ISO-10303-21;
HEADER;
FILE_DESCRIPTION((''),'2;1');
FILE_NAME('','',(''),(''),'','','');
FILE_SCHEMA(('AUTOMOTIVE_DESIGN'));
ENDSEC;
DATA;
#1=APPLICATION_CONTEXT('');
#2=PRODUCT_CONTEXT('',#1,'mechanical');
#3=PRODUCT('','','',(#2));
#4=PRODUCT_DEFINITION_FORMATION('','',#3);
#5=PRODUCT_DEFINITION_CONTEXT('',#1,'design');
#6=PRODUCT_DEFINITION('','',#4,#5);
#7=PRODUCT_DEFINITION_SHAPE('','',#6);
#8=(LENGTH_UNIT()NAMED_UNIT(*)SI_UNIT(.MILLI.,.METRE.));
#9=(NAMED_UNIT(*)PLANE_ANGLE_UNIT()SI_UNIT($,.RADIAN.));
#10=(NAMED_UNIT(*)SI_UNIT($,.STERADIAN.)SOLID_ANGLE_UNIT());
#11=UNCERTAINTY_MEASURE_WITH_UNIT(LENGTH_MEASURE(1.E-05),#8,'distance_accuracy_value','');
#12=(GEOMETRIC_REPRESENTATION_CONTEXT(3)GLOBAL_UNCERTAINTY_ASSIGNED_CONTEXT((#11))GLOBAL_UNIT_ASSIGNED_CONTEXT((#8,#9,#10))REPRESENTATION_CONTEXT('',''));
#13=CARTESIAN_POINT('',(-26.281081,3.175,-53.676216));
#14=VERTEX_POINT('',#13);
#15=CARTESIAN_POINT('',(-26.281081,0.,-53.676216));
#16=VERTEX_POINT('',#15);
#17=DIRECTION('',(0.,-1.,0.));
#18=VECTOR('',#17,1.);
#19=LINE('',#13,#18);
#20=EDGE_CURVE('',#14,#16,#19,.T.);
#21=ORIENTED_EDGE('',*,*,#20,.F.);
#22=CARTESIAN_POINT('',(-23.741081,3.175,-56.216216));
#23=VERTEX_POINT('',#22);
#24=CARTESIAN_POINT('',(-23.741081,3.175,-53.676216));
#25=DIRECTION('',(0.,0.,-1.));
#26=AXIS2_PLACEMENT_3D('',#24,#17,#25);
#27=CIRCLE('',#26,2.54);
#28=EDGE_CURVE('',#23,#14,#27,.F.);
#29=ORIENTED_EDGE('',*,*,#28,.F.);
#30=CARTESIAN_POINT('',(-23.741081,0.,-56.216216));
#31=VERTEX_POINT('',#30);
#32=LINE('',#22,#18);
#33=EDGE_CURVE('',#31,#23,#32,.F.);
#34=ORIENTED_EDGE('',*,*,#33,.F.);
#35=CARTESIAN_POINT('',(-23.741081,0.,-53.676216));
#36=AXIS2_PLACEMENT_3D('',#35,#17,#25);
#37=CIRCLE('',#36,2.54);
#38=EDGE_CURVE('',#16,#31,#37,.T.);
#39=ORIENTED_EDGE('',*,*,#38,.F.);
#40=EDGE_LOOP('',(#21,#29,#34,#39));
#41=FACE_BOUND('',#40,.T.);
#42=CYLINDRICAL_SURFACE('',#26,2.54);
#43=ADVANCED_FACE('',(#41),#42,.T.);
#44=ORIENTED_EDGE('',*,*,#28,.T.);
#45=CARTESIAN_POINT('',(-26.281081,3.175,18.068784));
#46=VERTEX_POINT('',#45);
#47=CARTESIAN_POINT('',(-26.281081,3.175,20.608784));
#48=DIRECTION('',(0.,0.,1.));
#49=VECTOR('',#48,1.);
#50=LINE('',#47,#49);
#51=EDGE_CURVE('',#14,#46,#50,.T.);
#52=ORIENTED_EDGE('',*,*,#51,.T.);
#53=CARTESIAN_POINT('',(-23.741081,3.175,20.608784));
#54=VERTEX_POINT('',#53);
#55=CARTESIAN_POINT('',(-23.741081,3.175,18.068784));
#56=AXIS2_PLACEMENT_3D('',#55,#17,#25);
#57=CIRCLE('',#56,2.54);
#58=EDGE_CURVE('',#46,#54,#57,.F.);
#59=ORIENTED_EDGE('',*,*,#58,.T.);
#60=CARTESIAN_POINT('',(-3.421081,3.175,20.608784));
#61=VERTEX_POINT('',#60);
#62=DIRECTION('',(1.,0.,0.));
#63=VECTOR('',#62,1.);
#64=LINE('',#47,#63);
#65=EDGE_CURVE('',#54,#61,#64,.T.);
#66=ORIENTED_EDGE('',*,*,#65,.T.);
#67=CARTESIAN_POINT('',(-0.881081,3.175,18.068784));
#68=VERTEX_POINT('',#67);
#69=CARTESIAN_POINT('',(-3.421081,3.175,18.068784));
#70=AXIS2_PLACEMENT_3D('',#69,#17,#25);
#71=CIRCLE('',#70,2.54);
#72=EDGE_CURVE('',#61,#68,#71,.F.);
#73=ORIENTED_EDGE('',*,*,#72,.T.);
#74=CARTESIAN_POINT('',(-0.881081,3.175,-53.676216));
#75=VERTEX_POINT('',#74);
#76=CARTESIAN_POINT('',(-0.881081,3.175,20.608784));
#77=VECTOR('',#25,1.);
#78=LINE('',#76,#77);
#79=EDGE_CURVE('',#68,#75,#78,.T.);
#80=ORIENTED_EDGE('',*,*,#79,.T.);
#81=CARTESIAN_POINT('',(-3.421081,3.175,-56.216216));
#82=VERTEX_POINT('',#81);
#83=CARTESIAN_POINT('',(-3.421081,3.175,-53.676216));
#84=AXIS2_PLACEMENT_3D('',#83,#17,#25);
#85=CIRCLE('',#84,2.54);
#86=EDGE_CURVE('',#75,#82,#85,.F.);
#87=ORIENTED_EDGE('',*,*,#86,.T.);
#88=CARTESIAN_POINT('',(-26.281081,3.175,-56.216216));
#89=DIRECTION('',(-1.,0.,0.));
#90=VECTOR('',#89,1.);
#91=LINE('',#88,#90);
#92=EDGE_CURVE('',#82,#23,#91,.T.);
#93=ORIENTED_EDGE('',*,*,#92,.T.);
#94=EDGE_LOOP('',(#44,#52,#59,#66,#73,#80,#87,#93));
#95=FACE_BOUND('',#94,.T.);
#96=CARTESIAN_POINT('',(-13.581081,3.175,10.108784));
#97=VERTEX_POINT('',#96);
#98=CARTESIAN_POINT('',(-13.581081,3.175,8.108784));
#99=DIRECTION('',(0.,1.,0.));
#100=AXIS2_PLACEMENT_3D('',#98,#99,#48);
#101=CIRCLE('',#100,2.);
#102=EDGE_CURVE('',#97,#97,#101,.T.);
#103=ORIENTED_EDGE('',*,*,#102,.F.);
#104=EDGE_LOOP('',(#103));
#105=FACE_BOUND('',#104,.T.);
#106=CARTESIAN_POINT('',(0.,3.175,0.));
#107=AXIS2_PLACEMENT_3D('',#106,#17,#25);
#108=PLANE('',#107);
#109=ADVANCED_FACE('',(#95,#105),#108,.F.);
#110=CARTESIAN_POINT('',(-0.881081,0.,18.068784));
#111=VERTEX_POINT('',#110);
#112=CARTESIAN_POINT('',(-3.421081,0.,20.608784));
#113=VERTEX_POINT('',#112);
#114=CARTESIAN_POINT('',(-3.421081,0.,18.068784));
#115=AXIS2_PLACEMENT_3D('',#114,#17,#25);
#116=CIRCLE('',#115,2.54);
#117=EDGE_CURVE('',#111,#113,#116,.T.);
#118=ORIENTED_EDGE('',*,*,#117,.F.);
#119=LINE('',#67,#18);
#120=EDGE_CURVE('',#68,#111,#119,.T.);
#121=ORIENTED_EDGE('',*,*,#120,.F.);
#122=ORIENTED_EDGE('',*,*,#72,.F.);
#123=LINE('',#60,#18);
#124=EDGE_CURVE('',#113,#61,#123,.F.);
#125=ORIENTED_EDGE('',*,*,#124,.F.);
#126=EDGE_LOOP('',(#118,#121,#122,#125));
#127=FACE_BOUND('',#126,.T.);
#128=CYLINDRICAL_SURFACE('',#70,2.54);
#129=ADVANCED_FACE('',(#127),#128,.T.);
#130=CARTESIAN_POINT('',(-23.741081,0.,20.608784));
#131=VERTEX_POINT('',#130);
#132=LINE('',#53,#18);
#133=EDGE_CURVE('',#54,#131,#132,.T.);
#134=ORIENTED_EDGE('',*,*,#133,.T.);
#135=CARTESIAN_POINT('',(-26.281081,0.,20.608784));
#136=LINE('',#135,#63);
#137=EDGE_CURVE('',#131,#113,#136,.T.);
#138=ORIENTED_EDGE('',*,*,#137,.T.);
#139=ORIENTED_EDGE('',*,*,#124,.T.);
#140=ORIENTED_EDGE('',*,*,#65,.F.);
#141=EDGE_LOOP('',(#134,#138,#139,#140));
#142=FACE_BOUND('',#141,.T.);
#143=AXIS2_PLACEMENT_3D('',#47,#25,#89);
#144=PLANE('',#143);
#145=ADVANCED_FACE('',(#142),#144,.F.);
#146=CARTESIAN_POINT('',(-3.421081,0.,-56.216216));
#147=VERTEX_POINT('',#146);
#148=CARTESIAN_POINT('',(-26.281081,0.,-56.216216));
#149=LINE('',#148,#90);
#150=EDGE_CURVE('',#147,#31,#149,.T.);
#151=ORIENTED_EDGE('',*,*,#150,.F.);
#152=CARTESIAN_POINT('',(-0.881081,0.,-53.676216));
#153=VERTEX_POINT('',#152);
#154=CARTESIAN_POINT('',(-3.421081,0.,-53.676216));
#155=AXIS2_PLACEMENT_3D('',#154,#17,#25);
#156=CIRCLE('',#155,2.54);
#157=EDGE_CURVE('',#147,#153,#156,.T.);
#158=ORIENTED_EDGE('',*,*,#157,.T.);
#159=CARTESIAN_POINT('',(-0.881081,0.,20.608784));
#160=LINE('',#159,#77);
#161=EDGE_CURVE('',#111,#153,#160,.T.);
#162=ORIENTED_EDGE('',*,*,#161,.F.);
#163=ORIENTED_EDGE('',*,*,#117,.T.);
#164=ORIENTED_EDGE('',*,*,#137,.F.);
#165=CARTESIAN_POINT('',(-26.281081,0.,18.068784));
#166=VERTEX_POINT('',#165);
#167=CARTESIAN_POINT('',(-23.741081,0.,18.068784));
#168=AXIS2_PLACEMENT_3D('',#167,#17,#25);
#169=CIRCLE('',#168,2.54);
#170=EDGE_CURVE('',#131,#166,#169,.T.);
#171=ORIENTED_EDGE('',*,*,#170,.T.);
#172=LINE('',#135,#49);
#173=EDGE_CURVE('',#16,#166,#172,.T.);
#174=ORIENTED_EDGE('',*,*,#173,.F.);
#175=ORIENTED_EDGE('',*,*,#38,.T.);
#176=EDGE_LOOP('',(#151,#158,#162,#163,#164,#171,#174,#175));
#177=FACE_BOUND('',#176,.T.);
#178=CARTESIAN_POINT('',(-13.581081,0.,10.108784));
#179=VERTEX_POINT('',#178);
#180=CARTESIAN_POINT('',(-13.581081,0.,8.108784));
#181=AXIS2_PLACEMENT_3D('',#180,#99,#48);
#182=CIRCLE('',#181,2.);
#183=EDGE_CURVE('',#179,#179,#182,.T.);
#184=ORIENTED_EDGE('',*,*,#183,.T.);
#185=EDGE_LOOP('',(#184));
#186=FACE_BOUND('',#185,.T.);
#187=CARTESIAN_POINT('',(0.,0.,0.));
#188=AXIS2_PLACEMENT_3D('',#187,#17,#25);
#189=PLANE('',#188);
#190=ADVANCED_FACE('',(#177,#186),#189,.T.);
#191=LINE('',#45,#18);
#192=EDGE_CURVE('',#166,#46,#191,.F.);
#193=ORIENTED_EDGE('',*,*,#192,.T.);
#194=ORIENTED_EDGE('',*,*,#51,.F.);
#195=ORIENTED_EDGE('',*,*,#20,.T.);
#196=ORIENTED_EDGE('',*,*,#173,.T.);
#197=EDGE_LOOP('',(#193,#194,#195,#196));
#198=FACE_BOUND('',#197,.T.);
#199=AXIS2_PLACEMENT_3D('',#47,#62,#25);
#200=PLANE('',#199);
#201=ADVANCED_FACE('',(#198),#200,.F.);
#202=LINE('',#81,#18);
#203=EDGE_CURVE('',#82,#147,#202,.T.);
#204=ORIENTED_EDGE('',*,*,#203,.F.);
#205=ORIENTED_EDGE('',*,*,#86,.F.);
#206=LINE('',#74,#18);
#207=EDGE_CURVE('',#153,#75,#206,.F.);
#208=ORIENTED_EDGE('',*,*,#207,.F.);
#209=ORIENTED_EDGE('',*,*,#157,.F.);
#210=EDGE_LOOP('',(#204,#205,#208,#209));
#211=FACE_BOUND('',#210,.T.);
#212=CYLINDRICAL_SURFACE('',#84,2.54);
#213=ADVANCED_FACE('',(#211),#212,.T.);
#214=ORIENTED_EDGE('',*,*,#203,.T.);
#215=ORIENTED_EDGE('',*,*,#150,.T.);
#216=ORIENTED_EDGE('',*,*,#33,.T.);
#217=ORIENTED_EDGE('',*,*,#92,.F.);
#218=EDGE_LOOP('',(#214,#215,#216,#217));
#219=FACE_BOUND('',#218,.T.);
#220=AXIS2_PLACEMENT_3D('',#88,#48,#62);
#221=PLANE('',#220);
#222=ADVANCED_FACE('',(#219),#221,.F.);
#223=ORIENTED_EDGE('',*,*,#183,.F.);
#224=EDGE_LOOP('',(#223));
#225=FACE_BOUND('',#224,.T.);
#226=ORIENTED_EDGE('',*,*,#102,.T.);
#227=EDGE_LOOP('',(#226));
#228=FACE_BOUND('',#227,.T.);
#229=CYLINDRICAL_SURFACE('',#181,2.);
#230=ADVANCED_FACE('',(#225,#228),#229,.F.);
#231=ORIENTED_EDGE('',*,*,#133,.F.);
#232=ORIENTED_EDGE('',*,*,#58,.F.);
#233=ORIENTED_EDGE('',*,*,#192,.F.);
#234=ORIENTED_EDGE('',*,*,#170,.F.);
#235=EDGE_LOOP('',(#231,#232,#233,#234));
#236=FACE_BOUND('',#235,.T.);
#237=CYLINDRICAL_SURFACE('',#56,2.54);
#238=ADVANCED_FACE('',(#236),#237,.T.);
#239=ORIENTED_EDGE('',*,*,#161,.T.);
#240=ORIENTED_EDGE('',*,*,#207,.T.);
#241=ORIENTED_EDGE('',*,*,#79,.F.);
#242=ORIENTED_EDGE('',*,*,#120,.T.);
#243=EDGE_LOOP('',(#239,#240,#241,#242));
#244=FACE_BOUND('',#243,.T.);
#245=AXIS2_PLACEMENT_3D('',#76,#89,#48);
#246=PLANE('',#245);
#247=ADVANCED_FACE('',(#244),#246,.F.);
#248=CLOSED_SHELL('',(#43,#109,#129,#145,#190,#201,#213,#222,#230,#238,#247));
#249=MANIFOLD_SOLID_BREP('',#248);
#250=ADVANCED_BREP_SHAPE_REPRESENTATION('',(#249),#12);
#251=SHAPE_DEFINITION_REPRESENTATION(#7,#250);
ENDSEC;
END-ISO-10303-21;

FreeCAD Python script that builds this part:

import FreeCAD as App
import Part
import Sketcher

V = App.Vector
Q = App.Units.Quantity


def edges_at(feature, points):
    """Names of the edges that pass closest to the given points."""
    edges = feature.Shape.Edges
    near = lambda p: min(range(len(edges)), key=lambda i: edges[i].distToShape(Part.Vertex(*p))[0])
    return sorted({f"Edge{near(p) + 1}" for p in points})


def add_polygon(sketch, points):
    """Adds a closed chain of lines whose ends are joined by coincident constraints."""
    first, n = sketch.GeometryCount, len(points)
    for a, b in zip(points, points[1:] + points[:1]):
        sketch.addGeometry(Part.LineSegment(App.Vector(*a, 0), App.Vector(*b, 0)), False)
    for i in range(n):
        sketch.addConstraint(Sketcher.Constraint("Coincident", first + i, 2, first + (i + 1) % n, 1))

doc = App.newDocument("Part")
body = doc.addObject("PartDesign::Body", "Body")

sketch1 = body.newObject("Sketcher::SketchObject", "Sketch")
sketch1.AttachmentSupport = (doc.getObject("XZ_Plane"), [""])
sketch1.MapMode = "FlatFace"
add_polygon(sketch1, [(-26, -56), (-26, 21), (-1, 21), (-1, -56)])
sketch1.addConstraint([
    Sketcher.Constraint("Vertical", 0),
    Sketcher.Constraint("Horizontal", 1),
    Sketcher.Constraint("Vertical", 2),
    Sketcher.Constraint("Horizontal", 3),
    Sketcher.Constraint("DistanceX", 1, 1, 1, 2, Q("1 in")),
    Sketcher.Constraint("DistanceY", 0, 1, 0, 2, Q("76.825 mm")),
    Sketcher.Constraint("DistanceX", 0, 2, -1, 1, Q("26.281081 mm")),
    Sketcher.Constraint("DistanceY", -1, 1, 0, 2, Q("20.608784 mm")),
])
pad1 = body.newObject("PartDesign::Pad", "Pad")
pad1.Profile = sketch1
pad1.Length = Q("0.125 in")
pad1.Reversed = True

sketch2 = body.newObject("Sketcher::SketchObject", "Sketch001")
sketch2.AttachmentSupport = (doc.getObject("XZ_Plane"), [""])
sketch2.MapMode = "FlatFace"
sketch2.AttachmentOffset = App.Placement(V(0, 0, -0.125 * 25.4), App.Rotation())
sketch2.addGeometry(Part.Circle(V(-13.6, 8.1, 0), V(0, 0, 1), 2), False)
sketch2.addConstraint([
    Sketcher.Constraint("Diameter", 0, Q("4 mm")),
    Sketcher.Constraint("DistanceX", 0, 3, -1, 1, Q("13.581081 mm")),
    Sketcher.Constraint("DistanceY", -1, 1, 0, 3, Q("8.108784 mm")),
])
pocket1 = body.newObject("PartDesign::Pocket", "Pocket")
pocket1.Profile = sketch2
pocket1.Type = "ThroughAll"
pocket1.Reversed = True
doc.recompute()

fillet = body.newObject("PartDesign::Fillet", "Fillet")
fillet.Base = (pocket1, edges_at(pocket1, [
    (-26.281, 1.587, -56.216),
    (-0.881, 1.587, -56.216),
    (-0.881, 1.587, 20.609),
    (-26.281, 1.587, 20.609),
]))
fillet.Radius = Q("0.1 in")

doc.recompute()
